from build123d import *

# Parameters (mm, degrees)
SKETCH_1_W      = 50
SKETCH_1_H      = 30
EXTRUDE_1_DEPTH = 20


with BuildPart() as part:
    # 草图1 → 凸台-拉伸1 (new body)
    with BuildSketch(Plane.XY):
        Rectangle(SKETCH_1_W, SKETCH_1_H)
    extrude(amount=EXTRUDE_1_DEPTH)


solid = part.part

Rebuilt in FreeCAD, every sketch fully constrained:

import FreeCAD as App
import Part
import Sketcher

V = App.Vector

doc = App.newDocument("Part")
body = doc.addObject("PartDesign::Body", "Body")

sketch1 = body.newObject("Sketcher::SketchObject", "Sketch")
sketch1.AttachmentSupport = (doc.getObject("XY_Plane"), [""])
sketch1.MapMode = "FlatFace"
sketch1.addGeometry([
    Part.LineSegment(V(-25, 15, 0), V(-25, -15, 0)),
    Part.LineSegment(V(-25, -15, 0), V(25, -15, 0)),
    Part.LineSegment(V(25, -15, 0), V(25, 15, 0)),
    Part.LineSegment(V(25, 15, 0), V(-25, 15, 0)),
], False)
sketch1.addConstraint([
    Sketcher.Constraint("Coincident", 0, 2, 1, 1),
    Sketcher.Constraint("Coincident", 1, 2, 2, 1),
    Sketcher.Constraint("Coincident", 2, 2, 3, 1),
    Sketcher.Constraint("Coincident", 3, 2, 0, 1),
    Sketcher.Constraint("Vertical", 0),
    Sketcher.Constraint("Horizontal", 1),
    Sketcher.Constraint("Vertical", 2),
    Sketcher.Constraint("Horizontal", 3),
    Sketcher.Constraint("Symmetric", 0, 2, 2, 2, -1, 1),
    Sketcher.Constraint("DistanceX", 1, 1, 1, 2, 50.0),
    Sketcher.Constraint("DistanceY", 0, 2, 0, 1, 30.0),
])
pad1 = body.newObject("PartDesign::Pad", "Pad")
pad1.Profile = sketch1
pad1.Length = 20

doc.recompute()
